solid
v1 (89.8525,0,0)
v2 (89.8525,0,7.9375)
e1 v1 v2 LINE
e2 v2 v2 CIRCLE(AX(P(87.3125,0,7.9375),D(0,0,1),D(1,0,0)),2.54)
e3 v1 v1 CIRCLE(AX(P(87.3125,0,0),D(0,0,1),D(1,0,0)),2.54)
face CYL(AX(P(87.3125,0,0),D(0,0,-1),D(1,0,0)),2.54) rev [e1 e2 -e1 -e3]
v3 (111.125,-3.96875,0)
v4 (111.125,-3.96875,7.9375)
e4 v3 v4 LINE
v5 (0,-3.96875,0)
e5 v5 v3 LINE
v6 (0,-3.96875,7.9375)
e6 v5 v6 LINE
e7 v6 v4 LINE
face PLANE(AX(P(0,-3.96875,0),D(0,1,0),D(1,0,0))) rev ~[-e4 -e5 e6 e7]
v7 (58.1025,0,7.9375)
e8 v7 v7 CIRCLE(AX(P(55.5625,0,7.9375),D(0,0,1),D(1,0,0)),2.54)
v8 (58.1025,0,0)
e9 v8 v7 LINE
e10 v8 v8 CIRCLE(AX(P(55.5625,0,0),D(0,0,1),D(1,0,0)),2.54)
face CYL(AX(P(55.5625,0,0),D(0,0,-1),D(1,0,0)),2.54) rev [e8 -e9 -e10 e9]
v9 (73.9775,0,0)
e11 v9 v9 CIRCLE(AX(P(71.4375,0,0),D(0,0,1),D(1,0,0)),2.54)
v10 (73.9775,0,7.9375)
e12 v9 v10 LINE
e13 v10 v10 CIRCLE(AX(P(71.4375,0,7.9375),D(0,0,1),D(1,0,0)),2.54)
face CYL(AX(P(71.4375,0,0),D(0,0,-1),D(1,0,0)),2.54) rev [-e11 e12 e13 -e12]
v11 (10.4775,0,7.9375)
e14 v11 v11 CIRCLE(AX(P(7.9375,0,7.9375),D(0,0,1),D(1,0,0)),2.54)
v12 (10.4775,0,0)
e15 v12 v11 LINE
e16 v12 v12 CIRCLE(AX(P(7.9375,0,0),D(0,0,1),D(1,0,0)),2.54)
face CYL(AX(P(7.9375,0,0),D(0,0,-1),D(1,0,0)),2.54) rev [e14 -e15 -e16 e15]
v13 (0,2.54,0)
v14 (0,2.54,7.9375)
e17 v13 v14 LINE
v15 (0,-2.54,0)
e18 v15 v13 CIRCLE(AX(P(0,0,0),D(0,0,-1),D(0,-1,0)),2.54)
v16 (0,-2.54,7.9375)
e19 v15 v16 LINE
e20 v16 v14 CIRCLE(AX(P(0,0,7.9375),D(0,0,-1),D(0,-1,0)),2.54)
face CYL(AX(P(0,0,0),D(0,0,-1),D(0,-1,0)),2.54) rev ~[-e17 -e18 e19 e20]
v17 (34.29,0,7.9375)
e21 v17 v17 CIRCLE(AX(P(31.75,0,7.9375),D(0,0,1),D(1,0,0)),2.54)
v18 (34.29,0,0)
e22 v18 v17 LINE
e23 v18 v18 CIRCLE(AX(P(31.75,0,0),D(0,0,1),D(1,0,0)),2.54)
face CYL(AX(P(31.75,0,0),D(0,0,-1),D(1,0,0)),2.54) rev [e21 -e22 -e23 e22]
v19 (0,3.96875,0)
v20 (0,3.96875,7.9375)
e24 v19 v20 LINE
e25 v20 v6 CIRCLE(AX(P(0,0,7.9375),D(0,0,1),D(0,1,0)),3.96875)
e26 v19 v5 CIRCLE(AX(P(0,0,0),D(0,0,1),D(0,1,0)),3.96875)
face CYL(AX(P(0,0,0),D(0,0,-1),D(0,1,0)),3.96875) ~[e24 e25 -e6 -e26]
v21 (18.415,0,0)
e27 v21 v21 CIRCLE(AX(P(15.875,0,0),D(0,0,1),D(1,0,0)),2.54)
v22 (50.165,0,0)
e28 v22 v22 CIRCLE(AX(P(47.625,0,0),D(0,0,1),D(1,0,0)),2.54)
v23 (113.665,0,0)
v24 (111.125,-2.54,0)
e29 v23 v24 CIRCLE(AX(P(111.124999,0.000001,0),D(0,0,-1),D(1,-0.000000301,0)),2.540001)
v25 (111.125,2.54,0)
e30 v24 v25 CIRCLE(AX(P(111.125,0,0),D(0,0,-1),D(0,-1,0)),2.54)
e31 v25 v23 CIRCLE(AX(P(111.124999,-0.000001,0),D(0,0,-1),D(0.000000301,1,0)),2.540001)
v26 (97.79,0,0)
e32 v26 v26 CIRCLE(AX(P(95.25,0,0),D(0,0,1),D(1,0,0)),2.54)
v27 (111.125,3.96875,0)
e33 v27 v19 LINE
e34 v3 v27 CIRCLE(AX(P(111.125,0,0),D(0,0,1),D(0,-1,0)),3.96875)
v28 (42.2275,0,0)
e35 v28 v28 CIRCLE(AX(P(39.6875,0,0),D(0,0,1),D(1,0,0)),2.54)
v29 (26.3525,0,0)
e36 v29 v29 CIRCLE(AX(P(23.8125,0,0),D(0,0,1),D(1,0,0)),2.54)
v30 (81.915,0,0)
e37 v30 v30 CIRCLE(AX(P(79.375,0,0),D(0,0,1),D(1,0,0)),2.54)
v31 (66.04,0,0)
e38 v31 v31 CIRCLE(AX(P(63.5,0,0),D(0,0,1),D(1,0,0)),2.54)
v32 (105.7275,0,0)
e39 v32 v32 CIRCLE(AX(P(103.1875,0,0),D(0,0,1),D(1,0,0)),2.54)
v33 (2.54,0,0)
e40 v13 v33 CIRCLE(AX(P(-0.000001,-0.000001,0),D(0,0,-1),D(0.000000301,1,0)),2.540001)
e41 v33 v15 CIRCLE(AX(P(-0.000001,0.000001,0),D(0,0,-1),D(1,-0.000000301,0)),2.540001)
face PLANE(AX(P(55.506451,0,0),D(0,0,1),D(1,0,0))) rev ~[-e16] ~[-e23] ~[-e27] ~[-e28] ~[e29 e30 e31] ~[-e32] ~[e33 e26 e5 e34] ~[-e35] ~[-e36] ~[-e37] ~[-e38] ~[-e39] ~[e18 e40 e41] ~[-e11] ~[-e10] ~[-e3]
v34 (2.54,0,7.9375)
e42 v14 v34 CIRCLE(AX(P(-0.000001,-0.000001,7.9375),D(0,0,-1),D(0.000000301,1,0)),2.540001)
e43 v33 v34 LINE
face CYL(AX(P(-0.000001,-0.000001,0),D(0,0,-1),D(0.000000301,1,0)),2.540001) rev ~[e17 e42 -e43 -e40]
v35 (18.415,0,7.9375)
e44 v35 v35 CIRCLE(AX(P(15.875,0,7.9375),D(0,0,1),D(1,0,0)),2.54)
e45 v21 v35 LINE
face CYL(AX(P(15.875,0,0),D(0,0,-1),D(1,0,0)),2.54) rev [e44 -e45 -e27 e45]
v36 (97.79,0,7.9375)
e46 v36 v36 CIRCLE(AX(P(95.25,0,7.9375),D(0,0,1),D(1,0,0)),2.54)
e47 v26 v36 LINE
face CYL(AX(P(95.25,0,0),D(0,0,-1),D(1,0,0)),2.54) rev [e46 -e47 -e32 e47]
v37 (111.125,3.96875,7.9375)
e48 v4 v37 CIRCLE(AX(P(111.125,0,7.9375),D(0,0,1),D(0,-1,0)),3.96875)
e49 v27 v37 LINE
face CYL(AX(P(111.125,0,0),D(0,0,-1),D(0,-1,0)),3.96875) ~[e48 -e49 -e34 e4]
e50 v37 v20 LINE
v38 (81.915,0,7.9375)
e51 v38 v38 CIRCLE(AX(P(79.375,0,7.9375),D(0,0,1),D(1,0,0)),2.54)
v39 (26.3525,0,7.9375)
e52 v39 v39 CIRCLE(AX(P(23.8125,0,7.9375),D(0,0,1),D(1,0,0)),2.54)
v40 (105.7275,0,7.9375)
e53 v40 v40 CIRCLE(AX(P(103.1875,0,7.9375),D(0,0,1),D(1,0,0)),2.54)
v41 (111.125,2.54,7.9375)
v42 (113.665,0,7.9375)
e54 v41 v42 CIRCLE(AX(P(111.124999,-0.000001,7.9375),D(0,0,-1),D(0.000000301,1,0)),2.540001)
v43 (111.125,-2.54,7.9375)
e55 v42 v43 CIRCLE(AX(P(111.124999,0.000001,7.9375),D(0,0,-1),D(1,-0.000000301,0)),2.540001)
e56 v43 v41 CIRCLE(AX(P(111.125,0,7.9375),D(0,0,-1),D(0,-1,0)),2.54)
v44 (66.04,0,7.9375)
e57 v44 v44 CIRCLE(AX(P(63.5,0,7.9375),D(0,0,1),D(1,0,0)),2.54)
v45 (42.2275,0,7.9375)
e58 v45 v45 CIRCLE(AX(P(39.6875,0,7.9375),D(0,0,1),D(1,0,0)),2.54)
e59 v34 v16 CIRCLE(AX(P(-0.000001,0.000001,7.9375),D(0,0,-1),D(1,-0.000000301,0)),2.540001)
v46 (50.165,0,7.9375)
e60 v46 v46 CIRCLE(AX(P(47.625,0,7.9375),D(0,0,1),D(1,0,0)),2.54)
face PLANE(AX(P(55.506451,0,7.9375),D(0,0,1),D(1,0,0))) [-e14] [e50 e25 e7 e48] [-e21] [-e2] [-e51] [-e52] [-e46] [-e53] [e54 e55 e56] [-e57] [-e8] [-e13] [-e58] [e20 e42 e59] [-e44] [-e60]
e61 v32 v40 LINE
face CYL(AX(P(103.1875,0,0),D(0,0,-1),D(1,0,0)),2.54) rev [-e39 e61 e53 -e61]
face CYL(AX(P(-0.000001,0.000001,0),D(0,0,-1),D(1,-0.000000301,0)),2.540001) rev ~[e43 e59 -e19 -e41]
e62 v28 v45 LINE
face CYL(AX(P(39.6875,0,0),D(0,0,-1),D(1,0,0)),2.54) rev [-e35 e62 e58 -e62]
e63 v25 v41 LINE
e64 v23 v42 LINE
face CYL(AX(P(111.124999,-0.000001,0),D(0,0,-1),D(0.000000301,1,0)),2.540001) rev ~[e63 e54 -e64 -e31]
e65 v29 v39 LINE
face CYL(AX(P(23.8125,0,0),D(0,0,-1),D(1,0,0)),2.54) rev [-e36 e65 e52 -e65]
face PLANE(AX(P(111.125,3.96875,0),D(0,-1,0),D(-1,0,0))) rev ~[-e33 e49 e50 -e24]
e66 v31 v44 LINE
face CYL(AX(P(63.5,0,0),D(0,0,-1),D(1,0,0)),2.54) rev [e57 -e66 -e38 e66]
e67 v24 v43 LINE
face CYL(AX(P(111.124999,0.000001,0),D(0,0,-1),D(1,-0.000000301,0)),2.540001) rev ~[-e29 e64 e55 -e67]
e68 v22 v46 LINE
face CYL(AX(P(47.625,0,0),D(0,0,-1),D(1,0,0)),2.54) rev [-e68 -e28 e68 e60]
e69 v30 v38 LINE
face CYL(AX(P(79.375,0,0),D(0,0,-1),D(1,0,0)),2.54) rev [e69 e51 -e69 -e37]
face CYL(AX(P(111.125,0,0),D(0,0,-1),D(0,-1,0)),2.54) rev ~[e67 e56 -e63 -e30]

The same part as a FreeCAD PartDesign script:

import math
import FreeCAD as App
import Part
import Sketcher
Q = App.Units.Quantity

doc = App.newDocument("Part")
params = doc.addObject("Spreadsheet::Sheet", "Params")
for row, (alias, value) in enumerate([
    ("sketch1_diameter", "0.2 in"),
    ("sketch1_radius", "0.15625 in"),
    ("sketch1_width", "4.375 in"),
    ("pad1_length", "0.3125 in"),
], start=1):
    params.set(f"A{row}", alias)
    params.set(f"B{row}", "=" + value)
    params.setAlias(f"B{row}", alias)

body = doc.addObject("PartDesign::Body", "Body")

# Sketch on XY plane
sketch1 = doc.addObject("Sketcher::SketchObject", "Sketch")
body.addObject(sketch1)
sketch1.AttachmentSupport = (doc.XY_Plane, [""])
sketch1.MapMode = "FlatFace"
sketch1.addGeometry(Part.LineSegment(App.Vector(111.1, 4, 0), App.Vector(0, 4, 0)), False)
sketch1.addGeometry(Part.ArcOfCircle(Part.Circle(App.Vector(0, 0, 0), App.Vector(0, 0, 1), 4), math.radians(90), math.radians(270)), False)
sketch1.addGeometry(Part.LineSegment(App.Vector(0, -4, 0), App.Vector(111.1, -4, 0)), False)
sketch1.addGeometry(Part.ArcOfCircle(Part.Circle(App.Vector(111.1, 0, 0), App.Vector(0, 0, 1), 4), math.radians(-90), math.radians(90)), False)
sketch1.addGeometry(Part.ArcOfCircle(Part.Circle(App.Vector(111.1, 0, 0), App.Vector(0, 0, 1), 2.5), math.radians(90), math.radians(270)), False)
sketch1.addGeometry(Part.ArcOfCircle(Part.Circle(App.Vector(111.1, 0, 0), App.Vector(0, 0, 1), 2.5), math.radians(0), math.radians(90)), False)
sketch1.addGeometry(Part.ArcOfCircle(Part.Circle(App.Vector(111.1, 0, 0), App.Vector(0, 0, 1), 2.5), math.radians(-90), math.radians(0)), False)
sketch1.addGeometry(Part.ArcOfCircle(Part.Circle(App.Vector(0, 0, 0), App.Vector(0, 0, 1), 2.5), math.radians(0), math.radians(90)), False)
sketch1.addGeometry(Part.ArcOfCircle(Part.Circle(App.Vector(0, 0, 0), App.Vector(0, 0, 1), 2.5), math.radians(-90), math.radians(0)), False)
sketch1.addGeometry(Part.ArcOfCircle(Part.Circle(App.Vector(0, 0, 0), App.Vector(0, 0, 1), 2.5), math.radians(90), math.radians(270)), False)
sketch1.addGeometry(Part.Circle(App.Vector(7.9, 0, 0), App.Vector(0, 0, 1), 2.5), False)
sketch1.addGeometry(Part.Circle(App.Vector(15.9, 0, 0), App.Vector(0, 0, 1), 2.5), False)
sketch1.addGeometry(Part.Circle(App.Vector(23.8, 0, 0), App.Vector(0, 0, 1), 2.5), False)
sketch1.addGeometry(Part.Circle(App.Vector(31.8, 0, 0), App.Vector(0, 0, 1), 2.5), False)
sketch1.addGeometry(Part.Circle(App.Vector(39.7, 0, 0), App.Vector(0, 0, 1), 2.5), False)
sketch1.addGeometry(Part.Circle(App.Vector(47.6, 0, 0), App.Vector(0, 0, 1), 2.5), False)
sketch1.addGeometry(Part.Circle(App.Vector(55.6, 0, 0), App.Vector(0, 0, 1), 2.5), False)
sketch1.addGeometry(Part.Circle(App.Vector(63.5, 0, 0), App.Vector(0, 0, 1), 2.5), False)
sketch1.addGeometry(Part.Circle(App.Vector(71.4, 0, 0), App.Vector(0, 0, 1), 2.5), False)
sketch1.addGeometry(Part.Circle(App.Vector(79.4, 0, 0), App.Vector(0, 0, 1), 2.5), False)
sketch1.addGeometry(Part.Circle(App.Vector(87.3, 0, 0), App.Vector(0, 0, 1), 2.5), False)
sketch1.addGeometry(Part.Circle(App.Vector(95.2, 0, 0), App.Vector(0, 0, 1), 2.5), False)
sketch1.addGeometry(Part.Circle(App.Vector(103.2, 0, 0), App.Vector(0, 0, 1), 2.5), False)
sketch1.addConstraint(Sketcher.Constraint("Tangent", 0, 2, 1, 1))
sketch1.addConstraint(Sketcher.Constraint("Tangent", 1, 2, 2, 1))
sketch1.addConstraint(Sketcher.Constraint("Tangent", 2, 2, 3, 1))
sketch1.addConstraint(Sketcher.Constraint("Tangent", 3, 2, 0, 1))
sketch1.addConstraint(Sketcher.Constraint("Tangent", 4, 1, 5, 2))
sketch1.addConstraint(Sketcher.Constraint("Tangent", 5, 1, 6, 2))
sketch1.addConstraint(Sketcher.Constraint("Tangent", 6, 1, 4, 2))
sketch1.addConstraint(Sketcher.Constraint("Tangent", 7, 1, 8, 2))
sketch1.addConstraint(Sketcher.Constraint("Tangent", 8, 1, 9, 2))
sketch1.addConstraint(Sketcher.Constraint("Tangent", 9, 1, 7, 2))
sketch1.addConstraint(Sketcher.Constraint("Horizontal", 0))
sketch1.addConstraint(Sketcher.Constraint("Horizontal", 2))
sketch1.addConstraint(Sketcher.Constraint("Coincident", 1, 3, -1, 1))
sketch1.addConstraint(Sketcher.Constraint("Coincident", 7, 3, -1, 1))
sketch1.addConstraint(Sketcher.Constraint("Coincident", 4, 3, 3, 3))
sketch1.addConstraint(Sketcher.Constraint("Equal", 6, 7))
sketch1.addConstraint(Sketcher.Constraint("Equal", 9, 10))
sketch1.addConstraint(Sketcher.Constraint("Equal", 10, 11))
sketch1.addConstraint(Sketcher.Constraint("Equal", 11, 12))
sketch1.addConstraint(Sketcher.Constraint("Equal", 12, 13))
sketch1.addConstraint(Sketcher.Constraint("Equal", 13, 14))
sketch1.addConstraint(Sketcher.Constraint("Equal", 14, 15))
sketch1.addConstraint(Sketcher.Constraint("Equal", 15, 16))
sketch1.addConstraint(Sketcher.Constraint("Equal", 16, 17))
sketch1.addConstraint(Sketcher.Constraint("Equal", 17, 18))
sketch1.addConstraint(Sketcher.Constraint("Equal", 18, 19))
sketch1.addConstraint(Sketcher.Constraint("Equal", 19, 20))
sketch1.addConstraint(Sketcher.Constraint("Equal", 20, 21))
sketch1.addConstraint(Sketcher.Constraint("Equal", 21, 22))
sketch1.addConstraint(Sketcher.Constraint("PointOnObject", 10, 3, -1))
sketch1.addConstraint(Sketcher.Constraint("PointOnObject", 11, 3, -1))
sketch1.addConstraint(Sketcher.Constraint("PointOnObject", 12, 3, -1))
sketch1.addConstraint(Sketcher.Constraint("PointOnObject", 13, 3, -1))
sketch1.addConstraint(Sketcher.Constraint("PointOnObject", 14, 3, -1))
sketch1.addConstraint(Sketcher.Constraint("PointOnObject", 15, 3, -1))
sketch1.addConstraint(Sketcher.Constraint("PointOnObject", 16, 3, -1))
sketch1.addConstraint(Sketcher.Constraint("PointOnObject", 17, 3, -1))
sketch1.addConstraint(Sketcher.Constraint("PointOnObject", 18, 3, -1))
sketch1.addConstraint(Sketcher.Constraint("PointOnObject", 19, 3, -1))
sketch1.addConstraint(Sketcher.Constraint("PointOnObject", 20, 3, -1))
sketch1.addConstraint(Sketcher.Constraint("PointOnObject", 21, 3, -1))
sketch1.addConstraint(Sketcher.Constraint("PointOnObject", 22, 3, -1))
sketch1.addConstraint(Sketcher.Constraint("PointOnObject", 5, 1, -1))
sketch1.addConstraint(Sketcher.Constraint("PointOnObject", 7, 1, -1))
sketch1.addConstraint(Sketcher.Constraint("PointOnObject", 8, 1, -2))
sketch1.addConstraint(Sketcher.Constraint("PointOnObject", 9, 1, -2))
sketch1.addConstraint(Sketcher.Constraint("Vertical", 3, 2, 4, 1))
sketch1.addConstraint(Sketcher.Constraint("Vertical", 4, 1, 6, 1))
sketch1.addConstraint(Sketcher.Constraint("Diameter", 10, Q("0.2 in")))
sketch1.addConstraint(Sketcher.Constraint("Radius", 1, Q("0.15625 in")))
sketch1.addConstraint(Sketcher.Constraint("DistanceX", -1, 1, 17, 3, Q("2.5 in")))
sketch1.addConstraint(Sketcher.Constraint("DistanceX", 0, 2, 0, 1, Q("4.375 in")))
sketch1.addConstraint(Sketcher.Constraint("DistanceX", -1, 1, 13, 3, Q("1.25 in")))
sketch1.addConstraint(Sketcher.Constraint("DistanceX", -1, 1, 21, 3, Q("3.75 in")))
sketch1.addConstraint(Sketcher.Constraint("DistanceX", 10, 3, 14, 3, Q("1.25 in")))
sketch1.addConstraint(Sketcher.Constraint("DistanceX", 11, 3, 15, 3, Q("1.25 in")))
sketch1.addConstraint(Sketcher.Constraint("DistanceX", 12, 3, 16, 3, Q("1.25 in")))
sketch1.addConstraint(Sketcher.Constraint("DistanceX", 14, 3, 18, 3, Q("1.25 in")))
sketch1.addConstraint(Sketcher.Constraint("DistanceX", 19, 3, 5, 3, Q("1.25 in")))
sketch1.addConstraint(Sketcher.Constraint("DistanceX", -1, 1, 10, 3, Q("0.3125 in")))
sketch1.addConstraint(Sketcher.Constraint("DistanceX", -1, 1, 11, 3, Q("0.625 in")))
sketch1.addConstraint(Sketcher.Constraint("DistanceX", -1, 1, 12, 3, Q("0.9375 in")))
sketch1.addConstraint(Sketcher.Constraint("DistanceX", -1, 1, 20, 3, Q("3.4375 in")))
sketch1.addConstraint(Sketcher.Constraint("DistanceX", -1, 1, 22, 3, Q("4.0625 in")))
sketch1.setExpression("Constraints[48]", "Params.sketch1_diameter")
sketch1.setExpression("Constraints[49]", "Params.sketch1_radius")
sketch1.setExpression("Constraints[51]", "Params.sketch1_width")
pad1 = doc.addObject("PartDesign::Pad", "Pad")
body.addObject(pad1)
pad1.Profile = sketch1
pad1.setExpression("Length", "Params.pad1_length")

doc.recompute()
